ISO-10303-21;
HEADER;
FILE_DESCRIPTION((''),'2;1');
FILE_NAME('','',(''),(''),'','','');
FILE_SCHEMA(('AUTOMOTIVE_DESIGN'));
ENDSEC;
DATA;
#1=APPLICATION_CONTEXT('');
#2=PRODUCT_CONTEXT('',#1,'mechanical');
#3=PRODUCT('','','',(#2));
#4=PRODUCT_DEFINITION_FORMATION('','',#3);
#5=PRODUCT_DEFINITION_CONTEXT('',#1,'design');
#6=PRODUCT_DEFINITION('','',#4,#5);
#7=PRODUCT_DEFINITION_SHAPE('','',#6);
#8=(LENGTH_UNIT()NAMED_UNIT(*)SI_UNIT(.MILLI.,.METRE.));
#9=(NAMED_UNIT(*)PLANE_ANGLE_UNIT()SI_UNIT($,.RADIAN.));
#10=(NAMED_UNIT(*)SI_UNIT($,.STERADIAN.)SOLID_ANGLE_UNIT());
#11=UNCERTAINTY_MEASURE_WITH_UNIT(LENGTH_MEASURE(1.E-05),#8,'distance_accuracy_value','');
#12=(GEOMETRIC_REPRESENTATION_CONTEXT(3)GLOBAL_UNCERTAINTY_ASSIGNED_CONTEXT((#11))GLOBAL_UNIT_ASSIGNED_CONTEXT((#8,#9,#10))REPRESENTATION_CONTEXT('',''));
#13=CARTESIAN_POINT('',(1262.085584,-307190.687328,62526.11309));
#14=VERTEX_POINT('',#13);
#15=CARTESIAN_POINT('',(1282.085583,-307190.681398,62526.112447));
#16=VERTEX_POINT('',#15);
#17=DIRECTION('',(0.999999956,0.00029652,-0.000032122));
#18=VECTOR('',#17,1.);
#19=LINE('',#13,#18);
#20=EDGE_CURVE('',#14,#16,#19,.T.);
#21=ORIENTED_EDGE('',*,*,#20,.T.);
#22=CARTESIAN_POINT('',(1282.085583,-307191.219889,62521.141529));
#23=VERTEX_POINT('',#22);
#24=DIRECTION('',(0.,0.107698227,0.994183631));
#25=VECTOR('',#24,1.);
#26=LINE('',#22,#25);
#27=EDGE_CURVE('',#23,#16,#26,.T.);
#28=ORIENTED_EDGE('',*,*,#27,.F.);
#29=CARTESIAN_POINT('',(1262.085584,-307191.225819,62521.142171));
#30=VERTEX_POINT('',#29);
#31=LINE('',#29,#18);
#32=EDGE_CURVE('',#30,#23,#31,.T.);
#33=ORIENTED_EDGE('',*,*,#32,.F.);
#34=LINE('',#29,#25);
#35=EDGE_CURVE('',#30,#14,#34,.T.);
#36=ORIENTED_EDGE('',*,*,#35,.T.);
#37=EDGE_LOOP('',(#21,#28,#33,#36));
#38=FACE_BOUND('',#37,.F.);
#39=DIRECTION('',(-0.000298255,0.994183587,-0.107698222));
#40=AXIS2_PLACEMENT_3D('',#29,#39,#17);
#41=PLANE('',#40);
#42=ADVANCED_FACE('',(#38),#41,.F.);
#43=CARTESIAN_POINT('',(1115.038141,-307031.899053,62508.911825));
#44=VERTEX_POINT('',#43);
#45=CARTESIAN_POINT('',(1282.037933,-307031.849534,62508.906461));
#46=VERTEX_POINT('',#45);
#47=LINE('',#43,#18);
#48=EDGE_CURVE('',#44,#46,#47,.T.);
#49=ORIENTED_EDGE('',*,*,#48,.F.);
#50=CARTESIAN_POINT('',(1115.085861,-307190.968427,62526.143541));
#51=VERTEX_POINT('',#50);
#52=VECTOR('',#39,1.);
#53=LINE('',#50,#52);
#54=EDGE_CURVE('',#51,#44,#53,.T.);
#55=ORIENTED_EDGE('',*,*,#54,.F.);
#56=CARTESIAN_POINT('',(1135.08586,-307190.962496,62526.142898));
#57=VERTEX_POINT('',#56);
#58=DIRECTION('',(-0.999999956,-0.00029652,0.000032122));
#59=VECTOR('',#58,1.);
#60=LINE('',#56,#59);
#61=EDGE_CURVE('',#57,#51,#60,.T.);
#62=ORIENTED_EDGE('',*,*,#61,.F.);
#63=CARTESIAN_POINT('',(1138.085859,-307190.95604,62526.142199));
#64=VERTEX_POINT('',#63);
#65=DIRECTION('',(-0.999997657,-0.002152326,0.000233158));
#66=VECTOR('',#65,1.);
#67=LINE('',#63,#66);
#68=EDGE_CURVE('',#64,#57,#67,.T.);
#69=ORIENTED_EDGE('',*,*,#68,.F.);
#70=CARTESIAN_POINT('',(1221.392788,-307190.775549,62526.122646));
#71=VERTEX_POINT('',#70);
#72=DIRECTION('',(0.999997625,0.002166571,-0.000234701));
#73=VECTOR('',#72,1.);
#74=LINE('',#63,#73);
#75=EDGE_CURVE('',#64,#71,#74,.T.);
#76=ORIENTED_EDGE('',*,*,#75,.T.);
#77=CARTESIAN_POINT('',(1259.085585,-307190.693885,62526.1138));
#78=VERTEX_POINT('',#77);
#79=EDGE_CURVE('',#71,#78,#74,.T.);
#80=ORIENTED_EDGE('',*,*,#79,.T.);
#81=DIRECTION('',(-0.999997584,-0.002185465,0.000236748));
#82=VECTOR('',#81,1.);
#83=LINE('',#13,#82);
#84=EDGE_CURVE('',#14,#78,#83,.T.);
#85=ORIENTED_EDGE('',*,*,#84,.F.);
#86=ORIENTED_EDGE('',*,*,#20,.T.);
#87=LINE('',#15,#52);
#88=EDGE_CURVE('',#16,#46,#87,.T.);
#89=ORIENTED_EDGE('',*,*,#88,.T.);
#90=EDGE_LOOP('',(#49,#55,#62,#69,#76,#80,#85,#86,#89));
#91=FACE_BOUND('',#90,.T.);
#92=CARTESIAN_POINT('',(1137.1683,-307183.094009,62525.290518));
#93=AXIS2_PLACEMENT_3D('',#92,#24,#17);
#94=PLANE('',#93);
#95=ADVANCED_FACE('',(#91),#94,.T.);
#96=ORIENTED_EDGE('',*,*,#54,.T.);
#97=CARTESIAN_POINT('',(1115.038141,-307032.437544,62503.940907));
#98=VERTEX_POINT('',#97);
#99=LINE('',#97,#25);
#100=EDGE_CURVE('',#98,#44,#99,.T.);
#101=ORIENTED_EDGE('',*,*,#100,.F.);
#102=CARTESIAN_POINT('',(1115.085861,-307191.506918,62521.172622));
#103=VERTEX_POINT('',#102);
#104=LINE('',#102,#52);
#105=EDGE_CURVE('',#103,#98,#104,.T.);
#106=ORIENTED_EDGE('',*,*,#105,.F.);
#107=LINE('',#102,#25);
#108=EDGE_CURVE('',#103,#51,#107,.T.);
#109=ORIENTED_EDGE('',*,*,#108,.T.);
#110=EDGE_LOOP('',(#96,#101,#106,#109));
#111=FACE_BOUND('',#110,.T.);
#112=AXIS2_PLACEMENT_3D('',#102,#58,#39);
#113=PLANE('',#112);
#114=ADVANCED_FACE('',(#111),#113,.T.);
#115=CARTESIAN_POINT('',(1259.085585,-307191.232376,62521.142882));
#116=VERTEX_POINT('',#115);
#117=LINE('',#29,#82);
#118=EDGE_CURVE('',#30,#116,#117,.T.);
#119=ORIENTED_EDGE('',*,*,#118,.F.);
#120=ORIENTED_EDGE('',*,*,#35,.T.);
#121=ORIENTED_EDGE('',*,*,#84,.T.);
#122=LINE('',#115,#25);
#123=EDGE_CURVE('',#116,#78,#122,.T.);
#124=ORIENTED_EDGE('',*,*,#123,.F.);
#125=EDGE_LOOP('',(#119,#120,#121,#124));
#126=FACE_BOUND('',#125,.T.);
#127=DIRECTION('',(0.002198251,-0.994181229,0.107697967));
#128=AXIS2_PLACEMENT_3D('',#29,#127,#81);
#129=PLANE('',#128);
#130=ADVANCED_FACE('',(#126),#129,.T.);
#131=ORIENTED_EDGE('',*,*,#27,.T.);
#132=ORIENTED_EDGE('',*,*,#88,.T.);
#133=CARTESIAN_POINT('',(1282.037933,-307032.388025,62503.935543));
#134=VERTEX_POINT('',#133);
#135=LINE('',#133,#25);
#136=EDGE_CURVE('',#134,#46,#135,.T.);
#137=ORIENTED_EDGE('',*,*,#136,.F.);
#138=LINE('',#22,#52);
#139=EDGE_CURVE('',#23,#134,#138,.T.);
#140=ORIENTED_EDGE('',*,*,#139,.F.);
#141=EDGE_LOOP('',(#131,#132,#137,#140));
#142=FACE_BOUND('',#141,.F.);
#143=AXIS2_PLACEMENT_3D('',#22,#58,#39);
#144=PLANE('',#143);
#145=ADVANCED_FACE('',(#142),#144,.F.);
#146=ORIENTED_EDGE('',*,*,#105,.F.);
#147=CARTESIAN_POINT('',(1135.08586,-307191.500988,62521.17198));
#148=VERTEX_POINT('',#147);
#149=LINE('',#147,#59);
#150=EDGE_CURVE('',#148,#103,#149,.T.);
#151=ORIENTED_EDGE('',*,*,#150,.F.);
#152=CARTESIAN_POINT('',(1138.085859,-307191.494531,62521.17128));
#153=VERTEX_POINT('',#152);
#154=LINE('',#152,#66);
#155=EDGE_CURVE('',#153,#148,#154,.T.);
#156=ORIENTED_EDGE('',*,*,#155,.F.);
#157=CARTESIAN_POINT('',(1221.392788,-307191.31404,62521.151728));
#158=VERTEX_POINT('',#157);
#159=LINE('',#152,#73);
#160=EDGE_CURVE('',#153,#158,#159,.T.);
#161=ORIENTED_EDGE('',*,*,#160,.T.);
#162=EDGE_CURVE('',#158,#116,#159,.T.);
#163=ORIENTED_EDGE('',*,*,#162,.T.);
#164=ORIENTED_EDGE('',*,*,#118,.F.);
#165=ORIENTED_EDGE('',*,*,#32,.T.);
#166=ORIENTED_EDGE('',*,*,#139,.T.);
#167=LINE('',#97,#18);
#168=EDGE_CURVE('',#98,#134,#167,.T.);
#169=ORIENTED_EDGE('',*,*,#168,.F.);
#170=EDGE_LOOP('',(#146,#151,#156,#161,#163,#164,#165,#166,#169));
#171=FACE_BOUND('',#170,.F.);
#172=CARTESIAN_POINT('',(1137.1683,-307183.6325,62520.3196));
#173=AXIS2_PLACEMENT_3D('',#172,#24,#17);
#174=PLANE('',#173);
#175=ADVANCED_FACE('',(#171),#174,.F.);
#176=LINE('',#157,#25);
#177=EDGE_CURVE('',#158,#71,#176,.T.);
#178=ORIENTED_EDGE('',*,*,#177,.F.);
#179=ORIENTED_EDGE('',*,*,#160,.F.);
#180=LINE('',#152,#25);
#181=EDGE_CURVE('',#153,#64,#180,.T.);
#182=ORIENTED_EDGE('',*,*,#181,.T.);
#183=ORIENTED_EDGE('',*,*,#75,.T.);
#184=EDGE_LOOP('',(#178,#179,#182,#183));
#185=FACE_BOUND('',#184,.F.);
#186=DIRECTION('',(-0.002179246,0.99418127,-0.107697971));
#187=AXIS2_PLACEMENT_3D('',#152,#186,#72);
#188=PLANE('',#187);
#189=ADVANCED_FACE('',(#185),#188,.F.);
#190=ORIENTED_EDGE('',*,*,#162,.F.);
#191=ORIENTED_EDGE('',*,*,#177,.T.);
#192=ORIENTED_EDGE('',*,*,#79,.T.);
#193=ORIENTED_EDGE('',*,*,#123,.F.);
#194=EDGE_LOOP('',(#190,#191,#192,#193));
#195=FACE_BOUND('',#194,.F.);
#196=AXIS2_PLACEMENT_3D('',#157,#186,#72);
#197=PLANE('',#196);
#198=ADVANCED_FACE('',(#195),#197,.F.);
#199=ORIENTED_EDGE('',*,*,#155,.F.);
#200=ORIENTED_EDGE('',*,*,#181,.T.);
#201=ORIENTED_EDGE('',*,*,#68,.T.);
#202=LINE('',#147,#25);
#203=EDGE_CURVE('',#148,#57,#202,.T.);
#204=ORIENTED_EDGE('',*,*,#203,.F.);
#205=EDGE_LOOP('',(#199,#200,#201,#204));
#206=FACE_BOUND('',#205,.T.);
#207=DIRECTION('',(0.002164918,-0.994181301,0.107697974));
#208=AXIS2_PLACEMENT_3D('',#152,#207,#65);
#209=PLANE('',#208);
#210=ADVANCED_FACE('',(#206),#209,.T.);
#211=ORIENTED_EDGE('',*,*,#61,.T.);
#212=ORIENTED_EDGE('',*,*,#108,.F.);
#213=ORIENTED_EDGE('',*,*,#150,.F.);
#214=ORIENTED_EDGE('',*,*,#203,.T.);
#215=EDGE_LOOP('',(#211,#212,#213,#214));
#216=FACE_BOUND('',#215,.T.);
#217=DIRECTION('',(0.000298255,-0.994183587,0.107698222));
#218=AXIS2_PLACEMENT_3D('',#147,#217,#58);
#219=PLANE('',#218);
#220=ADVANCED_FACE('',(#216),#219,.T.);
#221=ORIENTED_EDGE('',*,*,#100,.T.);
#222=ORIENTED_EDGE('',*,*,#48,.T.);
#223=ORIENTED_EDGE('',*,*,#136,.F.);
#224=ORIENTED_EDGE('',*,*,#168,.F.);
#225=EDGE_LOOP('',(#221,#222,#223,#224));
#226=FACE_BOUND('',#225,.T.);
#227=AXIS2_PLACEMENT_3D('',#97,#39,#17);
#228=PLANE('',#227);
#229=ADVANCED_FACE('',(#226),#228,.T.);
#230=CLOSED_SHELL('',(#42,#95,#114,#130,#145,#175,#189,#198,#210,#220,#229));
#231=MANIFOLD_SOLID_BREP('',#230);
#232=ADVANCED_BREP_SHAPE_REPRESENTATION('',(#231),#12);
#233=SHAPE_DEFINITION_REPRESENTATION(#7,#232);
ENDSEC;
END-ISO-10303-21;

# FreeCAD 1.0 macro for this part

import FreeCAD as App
import Part
import Sketcher

doc = App.newDocument("Part")
params = doc.addObject("Spreadsheet::Sheet", "Params")
for row, (alias, value) in enumerate([
    ("sketch1_width", "20 mm"),
    ("sketch1_width2", "20 mm"),
    ("sketch1_height", "160 mm"),
    ("sketch1_length", "3 mm"),
    ("sketch1_length2", "121 mm"),
    ("pad1_length", "5 mm"),
], start=1):
    params.set(f"A{row}", alias)
    params.set(f"B{row}", "=" + value)
    params.setAlias(f"B{row}", alias)

body = doc.addObject("PartDesign::Body", "Body")

# Sketch on an angled plane
sketch1 = body.newObject("Sketcher::SketchObject", "Sketch")
sketch1.Placement = App.Placement(App.Vector(1137.1683, -307183.6325, 62520.3196), App.Rotation(App.Vector(0.999999956, 0.00029652, -0.000032122), App.Vector(-0.000298255, 0.994183587, -0.107698222), App.Vector(0, 0.107698227, 0.994183631), "ZXY"))
sketch1.addGeometry(Part.LineSegment(App.Vector(-2.0848, -7.9139, 0), App.Vector(0.9152, -7.9083, 0)), False)
sketch1.addGeometry(Part.LineSegment(App.Vector(0.9152, -7.9083, 0), App.Vector(121.915, -7.6807, 0)), False)
sketch1.addGeometry(Part.LineSegment(App.Vector(121.915, -7.6807, 0), App.Vector(124.915, -7.675, 0)), False)
sketch1.addGeometry(Part.LineSegment(App.Vector(124.915, -7.675, 0), App.Vector(144.915, -7.675, 0)), False)
sketch1.addGeometry(Part.LineSegment(App.Vector(144.915, -7.675, 0), App.Vector(144.915, 152.0861, 0)), False)
sketch1.addGeometry(Part.LineSegment(App.Vector(144.915, 152.0861, 0), App.Vector(-22.0848, 152.0861, 0)), False)
sketch1.addGeometry(Part.LineSegment(App.Vector(-22.0848, 152.0861, 0), App.Vector(-22.0848, -7.9139, 0)), False)
sketch1.addGeometry(Part.LineSegment(App.Vector(-22.0848, -7.9139, 0), App.Vector(-2.0848, -7.9139, 0)), False)
sketch1.addConstraint(Sketcher.Constraint("Coincident", 0, 2, 1, 1))
sketch1.addConstraint(Sketcher.Constraint("Coincident", 1, 2, 2, 1))
sketch1.addConstraint(Sketcher.Constraint("Coincident", 2, 2, 3, 1))
sketch1.addConstraint(Sketcher.Constraint("Coincident", 3, 2, 4, 1))
sketch1.addConstraint(Sketcher.Constraint("Coincident", 4, 2, 5, 1))
sketch1.addConstraint(Sketcher.Constraint("Coincident", 5, 2, 6, 1))
sketch1.addConstraint(Sketcher.Constraint("Coincident", 6, 2, 7, 1))
sketch1.addConstraint(Sketcher.Constraint("Coincident", 7, 2, 0, 1))
sketch1.addConstraint(Sketcher.Constraint("Horizontal", 3))
sketch1.addConstraint(Sketcher.Constraint("Vertical", 4))
sketch1.addConstraint(Sketcher.Constraint("Horizontal", 5))
sketch1.addConstraint(Sketcher.Constraint("Vertical", 6))
sketch1.addConstraint(Sketcher.Constraint("Horizontal", 7))
sketch1.addConstraint(Sketcher.Constraint("DistanceX", 3, 1, 3, 2, 20.0))
sketch1.addConstraint(Sketcher.Constraint("DistanceX", 7, 1, 7, 2, 20.0))
sketch1.addConstraint(Sketcher.Constraint("DistanceY", 6, 2, 6, 1, 160.0))
sketch1.addConstraint(Sketcher.Constraint("Distance", 0, 3.0))
sketch1.addConstraint(Sketcher.Constraint("Distance", 1, 121.0))
sketch1.addConstraint(Sketcher.Constraint("Distance", 2, 3.0))
sketch1.addConstraint(Sketcher.Constraint("DistanceY", 4, 1, 4, 2, 159.761))
sketch1.addConstraint(Sketcher.Constraint("DistanceX", -1, 1, 1, 2, 121.915))
sketch1.addConstraint(Sketcher.Constraint("DistanceY", 2, 2, -1, 1, 7.675))
sketch1.addConstraint(Sketcher.Constraint("DistanceY", 0, 2, -1, 1, 7.9083))
sketch1.addConstraint(Sketcher.Constraint("DistanceY", 1, 2, -1, 1, 7.6807))
sketch1.setExpression("Constraints[13]", "Params.sketch1_width")
sketch1.setExpression("Constraints[14]", "Params.sketch1_width2")
sketch1.setExpression("Constraints[15]", "Params.sketch1_height")
sketch1.setExpression("Constraints[16]", "Params.sketch1_length")
sketch1.setExpression("Constraints[17]", "Params.sketch1_length2")
pad1 = body.newObject("PartDesign::Pad", "Pad")
pad1.Profile = sketch1
pad1.setExpression("Length", "Params.pad1_length")

doc.recompute()
